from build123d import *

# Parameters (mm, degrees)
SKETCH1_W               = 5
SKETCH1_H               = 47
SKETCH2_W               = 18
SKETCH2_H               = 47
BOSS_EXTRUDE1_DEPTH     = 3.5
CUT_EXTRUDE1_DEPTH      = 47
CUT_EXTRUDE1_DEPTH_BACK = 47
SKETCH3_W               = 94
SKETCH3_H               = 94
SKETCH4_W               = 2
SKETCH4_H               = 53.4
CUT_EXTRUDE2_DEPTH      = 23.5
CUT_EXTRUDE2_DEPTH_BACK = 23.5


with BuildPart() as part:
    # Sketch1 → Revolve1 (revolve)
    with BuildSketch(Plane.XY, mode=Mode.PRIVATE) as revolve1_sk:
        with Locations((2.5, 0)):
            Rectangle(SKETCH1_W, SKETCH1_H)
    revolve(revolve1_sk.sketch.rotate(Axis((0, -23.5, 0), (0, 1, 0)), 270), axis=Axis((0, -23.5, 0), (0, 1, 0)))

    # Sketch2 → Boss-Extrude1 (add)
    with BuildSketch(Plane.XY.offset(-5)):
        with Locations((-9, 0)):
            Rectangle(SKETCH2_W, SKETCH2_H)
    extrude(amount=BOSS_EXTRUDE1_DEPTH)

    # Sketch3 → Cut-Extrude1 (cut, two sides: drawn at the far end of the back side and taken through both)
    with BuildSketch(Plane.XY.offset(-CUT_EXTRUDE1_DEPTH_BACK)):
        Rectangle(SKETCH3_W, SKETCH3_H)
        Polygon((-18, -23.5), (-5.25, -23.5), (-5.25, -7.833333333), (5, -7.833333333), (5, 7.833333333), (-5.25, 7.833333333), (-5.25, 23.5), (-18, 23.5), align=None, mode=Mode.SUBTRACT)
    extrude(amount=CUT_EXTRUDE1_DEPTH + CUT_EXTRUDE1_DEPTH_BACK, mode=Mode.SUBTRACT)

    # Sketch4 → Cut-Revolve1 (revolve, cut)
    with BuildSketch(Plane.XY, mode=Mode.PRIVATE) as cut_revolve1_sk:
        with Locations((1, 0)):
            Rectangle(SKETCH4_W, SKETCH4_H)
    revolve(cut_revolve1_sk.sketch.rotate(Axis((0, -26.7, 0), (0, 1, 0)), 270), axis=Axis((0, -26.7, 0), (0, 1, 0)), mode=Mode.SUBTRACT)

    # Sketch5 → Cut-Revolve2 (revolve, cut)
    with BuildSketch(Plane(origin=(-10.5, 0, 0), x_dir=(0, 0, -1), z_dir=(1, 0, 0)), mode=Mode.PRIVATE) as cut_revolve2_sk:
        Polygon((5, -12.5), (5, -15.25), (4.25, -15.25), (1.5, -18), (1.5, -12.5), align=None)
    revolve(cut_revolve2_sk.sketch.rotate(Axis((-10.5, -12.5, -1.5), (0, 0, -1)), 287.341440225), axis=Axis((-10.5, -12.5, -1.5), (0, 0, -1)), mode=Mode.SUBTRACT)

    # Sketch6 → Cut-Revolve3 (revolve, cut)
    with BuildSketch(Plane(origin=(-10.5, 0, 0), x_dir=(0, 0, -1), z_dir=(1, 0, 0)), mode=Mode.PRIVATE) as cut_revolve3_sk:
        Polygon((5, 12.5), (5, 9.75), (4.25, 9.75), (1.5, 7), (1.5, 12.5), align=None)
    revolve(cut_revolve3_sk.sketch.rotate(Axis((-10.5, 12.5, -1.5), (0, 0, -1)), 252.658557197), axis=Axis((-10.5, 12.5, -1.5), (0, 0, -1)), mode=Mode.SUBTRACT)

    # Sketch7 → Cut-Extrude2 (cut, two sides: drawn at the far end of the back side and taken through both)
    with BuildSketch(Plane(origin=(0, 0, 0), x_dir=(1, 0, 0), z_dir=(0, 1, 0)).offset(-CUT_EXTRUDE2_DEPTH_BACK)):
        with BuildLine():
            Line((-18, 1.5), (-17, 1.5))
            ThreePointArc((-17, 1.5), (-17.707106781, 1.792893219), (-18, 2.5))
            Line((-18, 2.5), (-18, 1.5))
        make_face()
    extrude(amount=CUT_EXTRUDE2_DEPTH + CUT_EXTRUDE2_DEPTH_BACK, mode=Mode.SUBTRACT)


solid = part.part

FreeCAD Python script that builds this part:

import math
import FreeCAD as App
import Part
import Sketcher

V = App.Vector
Q = App.Units.Quantity

doc = App.newDocument("Part")
params = doc.addObject("Spreadsheet::Sheet", "Params")
for row, (alias, value) in enumerate([
    ("sketch1_width", "5 mm"),
    ("sketch1_height", "47 mm"),
    ("revolution_angle", "360 deg"),
    ("sketch2_width", "18 mm"),
    ("sketch2_height", "47 mm"),
    ("pad1_length", "3.5 mm"),
    ("sketch3_width", "94 mm"),
    ("sketch3_height", "47 mm"),
    ("sketch3_width2", "12.75 mm"),
    ("sketch4_width", "2 mm"),
    ("sketch4_height", "53.4 mm"),
    ("groove_angle", "360 deg"),
    ("sketch5_width", "5.5 mm"),
    ("sketch5_height", "3.5 mm"),
    ("sketch5_width2", "2.75 mm"),
    ("groove2_angle", "360 deg"),
    ("sketch6_width", "5.5 mm"),
    ("sketch6_height", "3.5 mm"),
    ("sketch6_width2", "2.75 mm"),
    ("groove3_angle", "360 deg"),
    ("sketch7_radius", "1 mm"),
], start=1):
    params.set(f"A{row}", alias)
    params.set(f"B{row}", "=" + value)
    params.setAlias(f"B{row}", alias)

body = doc.addObject("PartDesign::Body", "Body")

sketch1 = doc.addObject("Sketcher::SketchObject", "Sketch")
body.addObject(sketch1)
sketch1.AttachmentSupport = (doc.XY_Plane, [""])
sketch1.MapMode = "FlatFace"
sketch1.addGeometry([
    Part.LineSegment(V(0, 23.5, 0), V(0, -23.5, 0)),
    Part.LineSegment(V(0, -23.5, 0), V(5, -23.5, 0)),
    Part.LineSegment(V(5, -23.5, 0), V(5, 23.5, 0)),
    Part.LineSegment(V(5, 23.5, 0), V(0, 23.5, 0)),
], False)
sketch1.addConstraint([
    Sketcher.Constraint("Coincident", 0, 2, 1, 1),
    Sketcher.Constraint("Coincident", 1, 2, 2, 1),
    Sketcher.Constraint("Coincident", 2, 2, 3, 1),
    Sketcher.Constraint("Coincident", 3, 2, 0, 1),
    Sketcher.Constraint("Vertical", 0),
    Sketcher.Constraint("Horizontal", 1),
    Sketcher.Constraint("Vertical", 2),
    Sketcher.Constraint("Horizontal", 3),
    Sketcher.Constraint("Symmetric", 0, 2, 3, 2, -1, 1),
    Sketcher.Constraint("DistanceX", 1, 1, 1, 2, Q("5 mm")),
    Sketcher.Constraint("DistanceY", 0, 2, 0, 1, Q("47 mm")),
])
sketch1.setExpression("Constraints[9]", "Params.sketch1_width")
sketch1.setExpression("Constraints[10]", "Params.sketch1_height")
revolution = doc.addObject("PartDesign::Revolution", "Revolution")
body.addObject(revolution)
revolution.Profile = sketch1
revolution.ReferenceAxis = (sketch1, ["V_Axis"])
revolution.setExpression("Angle", "Params.revolution_angle")

sketch2 = doc.addObject("Sketcher::SketchObject", "Sketch001")
body.addObject(sketch2)
sketch2.AttachmentSupport = (doc.XY_Plane, [""])
sketch2.MapMode = "FlatFace"
sketch2.AttachmentOffset = App.Placement(V(0, 0, -5), App.Rotation())
sketch2.addGeometry([
    Part.LineSegment(V(-18, 23.5, 0), V(-18, -23.5, 0)),
    Part.LineSegment(V(-18, -23.5, 0), V(0, -23.5, 0)),
    Part.LineSegment(V(0, -23.5, 0), V(0, 23.5, 0)),
    Part.LineSegment(V(0, 23.5, 0), V(-18, 23.5, 0)),
], False)
sketch2.addConstraint([
    Sketcher.Constraint("Coincident", 0, 2, 1, 1),
    Sketcher.Constraint("Coincident", 1, 2, 2, 1),
    Sketcher.Constraint("Coincident", 2, 2, 3, 1),
    Sketcher.Constraint("Coincident", 3, 2, 0, 1),
    Sketcher.Constraint("Vertical", 0),
    Sketcher.Constraint("Horizontal", 1),
    Sketcher.Constraint("Vertical", 2),
    Sketcher.Constraint("Horizontal", 3),
    Sketcher.Constraint("Symmetric", 1, 2, 2, 2, -1, 1),
    Sketcher.Constraint("DistanceX", 1, 1, 1, 2, Q("18 mm")),
    Sketcher.Constraint("DistanceY", 0, 2, 0, 1, Q("47 mm")),
])
sketch2.setExpression("Constraints[9]", "Params.sketch2_width")
sketch2.setExpression("Constraints[10]", "Params.sketch2_height")
pad1 = doc.addObject("PartDesign::Pad", "Pad")
body.addObject(pad1)
pad1.Profile = sketch2
pad1.setExpression("Length", "Params.pad1_length")

sketch3 = doc.addObject("Sketcher::SketchObject", "Sketch002")
body.addObject(sketch3)
sketch3.AttachmentSupport = (doc.XY_Plane, [""])
sketch3.MapMode = "FlatFace"
sketch3.addGeometry([
    Part.LineSegment(V(-47, 47, 0), V(-47, -47, 0)),
    Part.LineSegment(V(-47, -47, 0), V(47, -47, 0)),
    Part.LineSegment(V(47, -47, 0), V(47, 47, 0)),
    Part.LineSegment(V(47, 47, 0), V(-47, 47, 0)),
    Part.LineSegment(V(-5.25, -23.5, 0), V(-18, -23.5, 0)),
    Part.LineSegment(V(-18, -23.5, 0), V(-18, 23.5, 0)),
    Part.LineSegment(V(-18, 23.5, 0), V(-5.25, 23.5, 0)),
    Part.LineSegment(V(-5.25, 23.5, 0), V(-5.25, 7.833333, 0)),
    Part.LineSegment(V(-5.25, 7.833333, 0), V(5, 7.833333, 0)),
    Part.LineSegment(V(5, 7.833333, 0), V(5, -7.833333, 0)),
    Part.LineSegment(V(5, -7.833333, 0), V(-5.25, -7.833333, 0)),
    Part.LineSegment(V(-5.25, -7.833333, 0), V(-5.25, -23.5, 0)),
], False)
sketch3.addConstraint([
    Sketcher.Constraint("Coincident", 0, 2, 1, 1),
    Sketcher.Constraint("Coincident", 1, 2, 2, 1),
    Sketcher.Constraint("Coincident", 2, 2, 3, 1),
    Sketcher.Constraint("Coincident", 3, 2, 0, 1),
    Sketcher.Constraint("Coincident", 4, 2, 5, 1),
    Sketcher.Constraint("Coincident", 5, 2, 6, 1),
    Sketcher.Constraint("Coincident", 6, 2, 7, 1),
    Sketcher.Constraint("Coincident", 7, 2, 8, 1),
    Sketcher.Constraint("Coincident", 8, 2, 9, 1),
    Sketcher.Constraint("Coincident", 9, 2, 10, 1),
    Sketcher.Constraint("Coincident", 10, 2, 11, 1),
    Sketcher.Constraint("Coincident", 11, 2, 4, 1),
    Sketcher.Constraint("Vertical", 0),
    Sketcher.Constraint("Horizontal", 1),
    Sketcher.Constraint("Vertical", 2),
    Sketcher.Constraint("Horizontal", 3),
    Sketcher.Constraint("Horizontal", 4),
    Sketcher.Constraint("Vertical", 5),
    Sketcher.Constraint("Horizontal", 6),
    Sketcher.Constraint("Vertical", 7),
    Sketcher.Constraint("Horizontal", 8),
    Sketcher.Constraint("Vertical", 9),
    Sketcher.Constraint("Horizontal", 10),
    Sketcher.Constraint("Vertical", 11),
    Sketcher.Constraint("Symmetric", 0, 2, 2, 2, -1, 1),
    Sketcher.Constraint("Symmetric", 7, 2, 10, 2, -1),
    Sketcher.Constraint("Equal", 3, 0),
    Sketcher.Constraint("Equal", 7, 9),
    Sketcher.Constraint("Equal", 9, 11),
    Sketcher.Constraint("DistanceX", 1, 1, 1, 2, Q("94 mm")),
    Sketcher.Constraint("DistanceY", 5, 1, 5, 2, Q("47 mm")),
    Sketcher.Constraint("DistanceX", 4, 2, -1, 1, Q("18 mm")),
    Sketcher.Constraint("DistanceX", -1, 1, 8, 2, Q("5 mm")),
    Sketcher.Constraint("DistanceX", 4, 2, 4, 1, Q("12.75 mm")),
])
sketch3.setExpression("Constraints[29]", "Params.sketch3_width")
sketch3.setExpression("Constraints[30]", "Params.sketch3_height")
sketch3.setExpression("Constraints[33]", "Params.sketch3_width2")
pocket1 = doc.addObject("PartDesign::Pocket", "Pocket")
body.addObject(pocket1)
pocket1.Profile = sketch3
pocket1.Type = "ThroughAll"
pocket1.Midplane = True

sketch4 = doc.addObject("Sketcher::SketchObject", "Sketch003")
body.addObject(sketch4)
sketch4.AttachmentSupport = (doc.XY_Plane, [""])
sketch4.MapMode = "FlatFace"
sketch4.addGeometry([
    Part.LineSegment(V(0, 26.7, 0), V(0, -26.7, 0)),
    Part.LineSegment(V(0, -26.7, 0), V(2, -26.7, 0)),
    Part.LineSegment(V(2, -26.7, 0), V(2, 26.7, 0)),
    Part.LineSegment(V(2, 26.7, 0), V(0, 26.7, 0)),
], False)
sketch4.addConstraint([
    Sketcher.Constraint("Coincident", 0, 2, 1, 1),
    Sketcher.Constraint("Coincident", 1, 2, 2, 1),
    Sketcher.Constraint("Coincident", 2, 2, 3, 1),
    Sketcher.Constraint("Coincident", 3, 2, 0, 1),
    Sketcher.Constraint("Vertical", 0),
    Sketcher.Constraint("Horizontal", 1),
    Sketcher.Constraint("Vertical", 2),
    Sketcher.Constraint("Horizontal", 3),
    Sketcher.Constraint("Symmetric", 0, 2, 3, 2, -1, 1),
    Sketcher.Constraint("DistanceX", 1, 1, 1, 2, Q("2 mm")),
    Sketcher.Constraint("DistanceY", 0, 2, 0, 1, Q("53.4 mm")),
])
sketch4.setExpression("Constraints[9]", "Params.sketch4_width")
sketch4.setExpression("Constraints[10]", "Params.sketch4_height")
groove = doc.addObject("PartDesign::Groove", "Groove")
body.addObject(groove)
groove.Profile = sketch4
groove.ReferenceAxis = (sketch4, ["V_Axis"])
groove.setExpression("Angle", "Params.groove_angle")

sketch5 = doc.addObject("Sketcher::SketchObject", "Sketch004")
body.addObject(sketch5)
sketch5.AttachmentSupport = (doc.YZ_Plane, [""])
sketch5.MapMode = "FlatFace"
sketch5.AttachmentOffset = App.Placement(V(0, 0, -10.5), App.Rotation())
sketch5.addGeometry([
    Part.LineSegment(V(-15.25, -5, 0), V(-12.5, -5, 0)),
    Part.LineSegment(V(-12.5, -5, 0), V(-12.5, -1.5, 0)),
    Part.LineSegment(V(-12.5, -1.5, 0), V(-18, -1.5, 0)),
    Part.LineSegment(V(-18, -1.5, 0), V(-15.25, -4.25, 0)),
    Part.LineSegment(V(-15.25, -4.25, 0), V(-15.25, -5, 0)),
], False)
sketch5.addGeometry(Part.LineSegment(V(-12.5, -1.5, 0), V(-12.5, -5, 0)), True)
sketch5.addConstraint([
    Sketcher.Constraint("Coincident", 0, 2, 1, 1),
    Sketcher.Constraint("Coincident", 1, 2, 2, 1),
    Sketcher.Constraint("Coincident", 2, 2, 3, 1),
    Sketcher.Constraint("Coincident", 3, 2, 4, 1),
    Sketcher.Constraint("Coincident", 4, 2, 0, 1),
    Sketcher.Constraint("Horizontal", 0),
    Sketcher.Constraint("Vertical", 1),
    Sketcher.Constraint("Horizontal", 2),
    Sketcher.Constraint("Vertical", 4),
    Sketcher.Constraint("Vertical", 5),
    Sketcher.Constraint("Coincident", 5, 1, 1, 2),
    Sketcher.Constraint("Horizontal", 4, 2, 5, 2),
    Sketcher.Constraint("Angle", 3, Q("-45 deg")),
    Sketcher.Constraint("DistanceX", 2, 2, 2, 1, Q("5.5 mm")),
    Sketcher.Constraint("DistanceY", 1, 1, 1, 2, Q("3.5 mm")),
    Sketcher.Constraint("DistanceY", 0, 2, -1, 1, Q("5 mm")),
    Sketcher.Constraint("DistanceX", 2, 2, -1, 1, Q("18 mm")),
    Sketcher.Constraint("DistanceX", 0, 1, 0, 2, Q("2.75 mm")),
])
sketch5.setExpression("Constraints[13]", "Params.sketch5_width")
sketch5.setExpression("Constraints[14]", "Params.sketch5_height")
sketch5.setExpression("Constraints[17]", "Params.sketch5_width2")
groove2 = doc.addObject("PartDesign::Groove", "Groove001")
body.addObject(groove2)
groove2.Profile = sketch5
groove2.ReferenceAxis = (sketch5, ["Axis0"])
groove2.setExpression("Angle", "Params.groove2_angle")

sketch6 = doc.addObject("Sketcher::SketchObject", "Sketch005")
body.addObject(sketch6)
sketch6.AttachmentSupport = (doc.YZ_Plane, [""])
sketch6.MapMode = "FlatFace"
sketch6.AttachmentOffset = App.Placement(V(0, 0, -10.5), App.Rotation())
sketch6.addGeometry([
    Part.LineSegment(V(9.75, -5, 0), V(12.5, -5, 0)),
    Part.LineSegment(V(12.5, -5, 0), V(12.5, -1.5, 0)),
    Part.LineSegment(V(12.5, -1.5, 0), V(7, -1.5, 0)),
    Part.LineSegment(V(7, -1.5, 0), V(9.75, -4.25, 0)),
    Part.LineSegment(V(9.75, -4.25, 0), V(9.75, -5, 0)),
], False)
sketch6.addGeometry(Part.LineSegment(V(12.5, -1.5, 0), V(12.5, -5, 0)), True)
sketch6.addConstraint([
    Sketcher.Constraint("Coincident", 0, 2, 1, 1),
    Sketcher.Constraint("Coincident", 1, 2, 2, 1),
    Sketcher.Constraint("Coincident", 2, 2, 3, 1),
    Sketcher.Constraint("Coincident", 3, 2, 4, 1),
    Sketcher.Constraint("Coincident", 4, 2, 0, 1),
    Sketcher.Constraint("Horizontal", 0),
    Sketcher.Constraint("Vertical", 1),
    Sketcher.Constraint("Horizontal", 2),
    Sketcher.Constraint("Vertical", 4),
    Sketcher.Constraint("Vertical", 5),
    Sketcher.Constraint("Coincident", 5, 1, 1, 2),
    Sketcher.Constraint("Horizontal", 4, 2, 5, 2),
    Sketcher.Constraint("Angle", 3, Q("-45 deg")),
    Sketcher.Constraint("DistanceX", 2, 2, 2, 1, Q("5.5 mm")),
    Sketcher.Constraint("DistanceY", 1, 1, 1, 2, Q("3.5 mm")),
    Sketcher.Constraint("DistanceY", 0, 2, -1, 1, Q("5 mm")),
    Sketcher.Constraint("DistanceX", -1, 1, 2, 2, Q("7 mm")),
    Sketcher.Constraint("DistanceX", 0, 1, 0, 2, Q("2.75 mm")),
])
sketch6.setExpression("Constraints[13]", "Params.sketch6_width")
sketch6.setExpression("Constraints[14]", "Params.sketch6_height")
sketch6.setExpression("Constraints[17]", "Params.sketch6_width2")
groove3 = doc.addObject("PartDesign::Groove", "Groove002")
body.addObject(groove3)
groove3.Profile = sketch6
groove3.ReferenceAxis = (sketch6, ["Axis0"])
groove3.setExpression("Angle", "Params.groove3_angle")

sketch7 = doc.addObject("Sketcher::SketchObject", "Sketch006")
body.addObject(sketch7)
sketch7.AttachmentSupport = (doc.XZ_Plane, [""])
sketch7.MapMode = "FlatFace"
sketch7.addGeometry([
    Part.LineSegment(V(-18, -1.5, 0), V(-17, -1.5, 0)),
    Part.ArcOfCircle(Part.Circle(V(-17, -2.5, 0), V(0, 0, 1), 1), math.radians(90), math.radians(180)),
    Part.LineSegment(V(-18, -2.5, 0), V(-18, -1.5, 0)),
], False)
sketch7.addConstraint([
    Sketcher.Constraint("Tangent", 0, 2, 1, 1),
    Sketcher.Constraint("Tangent", 1, 2, 2, 1),
    Sketcher.Constraint("Coincident", 2, 2, 0, 1),
    Sketcher.Constraint("Horizontal", 0),
    Sketcher.Constraint("Vertical", 2),
    Sketcher.Constraint("Radius", 1, Q("1 mm")),
    Sketcher.Constraint("DistanceX", 1, 3, -1, 1, Q("17 mm")),
    Sketcher.Constraint("DistanceY", 1, 3, -1, 1, Q("2.5 mm")),
])
sketch7.setExpression("Constraints[5]", "Params.sketch7_radius")
pocket2 = doc.addObject("PartDesign::Pocket", "Pocket001")
body.addObject(pocket2)
pocket2.Profile = sketch7
pocket2.Type = "ThroughAll"
pocket2.Midplane = True

doc.recompute()
